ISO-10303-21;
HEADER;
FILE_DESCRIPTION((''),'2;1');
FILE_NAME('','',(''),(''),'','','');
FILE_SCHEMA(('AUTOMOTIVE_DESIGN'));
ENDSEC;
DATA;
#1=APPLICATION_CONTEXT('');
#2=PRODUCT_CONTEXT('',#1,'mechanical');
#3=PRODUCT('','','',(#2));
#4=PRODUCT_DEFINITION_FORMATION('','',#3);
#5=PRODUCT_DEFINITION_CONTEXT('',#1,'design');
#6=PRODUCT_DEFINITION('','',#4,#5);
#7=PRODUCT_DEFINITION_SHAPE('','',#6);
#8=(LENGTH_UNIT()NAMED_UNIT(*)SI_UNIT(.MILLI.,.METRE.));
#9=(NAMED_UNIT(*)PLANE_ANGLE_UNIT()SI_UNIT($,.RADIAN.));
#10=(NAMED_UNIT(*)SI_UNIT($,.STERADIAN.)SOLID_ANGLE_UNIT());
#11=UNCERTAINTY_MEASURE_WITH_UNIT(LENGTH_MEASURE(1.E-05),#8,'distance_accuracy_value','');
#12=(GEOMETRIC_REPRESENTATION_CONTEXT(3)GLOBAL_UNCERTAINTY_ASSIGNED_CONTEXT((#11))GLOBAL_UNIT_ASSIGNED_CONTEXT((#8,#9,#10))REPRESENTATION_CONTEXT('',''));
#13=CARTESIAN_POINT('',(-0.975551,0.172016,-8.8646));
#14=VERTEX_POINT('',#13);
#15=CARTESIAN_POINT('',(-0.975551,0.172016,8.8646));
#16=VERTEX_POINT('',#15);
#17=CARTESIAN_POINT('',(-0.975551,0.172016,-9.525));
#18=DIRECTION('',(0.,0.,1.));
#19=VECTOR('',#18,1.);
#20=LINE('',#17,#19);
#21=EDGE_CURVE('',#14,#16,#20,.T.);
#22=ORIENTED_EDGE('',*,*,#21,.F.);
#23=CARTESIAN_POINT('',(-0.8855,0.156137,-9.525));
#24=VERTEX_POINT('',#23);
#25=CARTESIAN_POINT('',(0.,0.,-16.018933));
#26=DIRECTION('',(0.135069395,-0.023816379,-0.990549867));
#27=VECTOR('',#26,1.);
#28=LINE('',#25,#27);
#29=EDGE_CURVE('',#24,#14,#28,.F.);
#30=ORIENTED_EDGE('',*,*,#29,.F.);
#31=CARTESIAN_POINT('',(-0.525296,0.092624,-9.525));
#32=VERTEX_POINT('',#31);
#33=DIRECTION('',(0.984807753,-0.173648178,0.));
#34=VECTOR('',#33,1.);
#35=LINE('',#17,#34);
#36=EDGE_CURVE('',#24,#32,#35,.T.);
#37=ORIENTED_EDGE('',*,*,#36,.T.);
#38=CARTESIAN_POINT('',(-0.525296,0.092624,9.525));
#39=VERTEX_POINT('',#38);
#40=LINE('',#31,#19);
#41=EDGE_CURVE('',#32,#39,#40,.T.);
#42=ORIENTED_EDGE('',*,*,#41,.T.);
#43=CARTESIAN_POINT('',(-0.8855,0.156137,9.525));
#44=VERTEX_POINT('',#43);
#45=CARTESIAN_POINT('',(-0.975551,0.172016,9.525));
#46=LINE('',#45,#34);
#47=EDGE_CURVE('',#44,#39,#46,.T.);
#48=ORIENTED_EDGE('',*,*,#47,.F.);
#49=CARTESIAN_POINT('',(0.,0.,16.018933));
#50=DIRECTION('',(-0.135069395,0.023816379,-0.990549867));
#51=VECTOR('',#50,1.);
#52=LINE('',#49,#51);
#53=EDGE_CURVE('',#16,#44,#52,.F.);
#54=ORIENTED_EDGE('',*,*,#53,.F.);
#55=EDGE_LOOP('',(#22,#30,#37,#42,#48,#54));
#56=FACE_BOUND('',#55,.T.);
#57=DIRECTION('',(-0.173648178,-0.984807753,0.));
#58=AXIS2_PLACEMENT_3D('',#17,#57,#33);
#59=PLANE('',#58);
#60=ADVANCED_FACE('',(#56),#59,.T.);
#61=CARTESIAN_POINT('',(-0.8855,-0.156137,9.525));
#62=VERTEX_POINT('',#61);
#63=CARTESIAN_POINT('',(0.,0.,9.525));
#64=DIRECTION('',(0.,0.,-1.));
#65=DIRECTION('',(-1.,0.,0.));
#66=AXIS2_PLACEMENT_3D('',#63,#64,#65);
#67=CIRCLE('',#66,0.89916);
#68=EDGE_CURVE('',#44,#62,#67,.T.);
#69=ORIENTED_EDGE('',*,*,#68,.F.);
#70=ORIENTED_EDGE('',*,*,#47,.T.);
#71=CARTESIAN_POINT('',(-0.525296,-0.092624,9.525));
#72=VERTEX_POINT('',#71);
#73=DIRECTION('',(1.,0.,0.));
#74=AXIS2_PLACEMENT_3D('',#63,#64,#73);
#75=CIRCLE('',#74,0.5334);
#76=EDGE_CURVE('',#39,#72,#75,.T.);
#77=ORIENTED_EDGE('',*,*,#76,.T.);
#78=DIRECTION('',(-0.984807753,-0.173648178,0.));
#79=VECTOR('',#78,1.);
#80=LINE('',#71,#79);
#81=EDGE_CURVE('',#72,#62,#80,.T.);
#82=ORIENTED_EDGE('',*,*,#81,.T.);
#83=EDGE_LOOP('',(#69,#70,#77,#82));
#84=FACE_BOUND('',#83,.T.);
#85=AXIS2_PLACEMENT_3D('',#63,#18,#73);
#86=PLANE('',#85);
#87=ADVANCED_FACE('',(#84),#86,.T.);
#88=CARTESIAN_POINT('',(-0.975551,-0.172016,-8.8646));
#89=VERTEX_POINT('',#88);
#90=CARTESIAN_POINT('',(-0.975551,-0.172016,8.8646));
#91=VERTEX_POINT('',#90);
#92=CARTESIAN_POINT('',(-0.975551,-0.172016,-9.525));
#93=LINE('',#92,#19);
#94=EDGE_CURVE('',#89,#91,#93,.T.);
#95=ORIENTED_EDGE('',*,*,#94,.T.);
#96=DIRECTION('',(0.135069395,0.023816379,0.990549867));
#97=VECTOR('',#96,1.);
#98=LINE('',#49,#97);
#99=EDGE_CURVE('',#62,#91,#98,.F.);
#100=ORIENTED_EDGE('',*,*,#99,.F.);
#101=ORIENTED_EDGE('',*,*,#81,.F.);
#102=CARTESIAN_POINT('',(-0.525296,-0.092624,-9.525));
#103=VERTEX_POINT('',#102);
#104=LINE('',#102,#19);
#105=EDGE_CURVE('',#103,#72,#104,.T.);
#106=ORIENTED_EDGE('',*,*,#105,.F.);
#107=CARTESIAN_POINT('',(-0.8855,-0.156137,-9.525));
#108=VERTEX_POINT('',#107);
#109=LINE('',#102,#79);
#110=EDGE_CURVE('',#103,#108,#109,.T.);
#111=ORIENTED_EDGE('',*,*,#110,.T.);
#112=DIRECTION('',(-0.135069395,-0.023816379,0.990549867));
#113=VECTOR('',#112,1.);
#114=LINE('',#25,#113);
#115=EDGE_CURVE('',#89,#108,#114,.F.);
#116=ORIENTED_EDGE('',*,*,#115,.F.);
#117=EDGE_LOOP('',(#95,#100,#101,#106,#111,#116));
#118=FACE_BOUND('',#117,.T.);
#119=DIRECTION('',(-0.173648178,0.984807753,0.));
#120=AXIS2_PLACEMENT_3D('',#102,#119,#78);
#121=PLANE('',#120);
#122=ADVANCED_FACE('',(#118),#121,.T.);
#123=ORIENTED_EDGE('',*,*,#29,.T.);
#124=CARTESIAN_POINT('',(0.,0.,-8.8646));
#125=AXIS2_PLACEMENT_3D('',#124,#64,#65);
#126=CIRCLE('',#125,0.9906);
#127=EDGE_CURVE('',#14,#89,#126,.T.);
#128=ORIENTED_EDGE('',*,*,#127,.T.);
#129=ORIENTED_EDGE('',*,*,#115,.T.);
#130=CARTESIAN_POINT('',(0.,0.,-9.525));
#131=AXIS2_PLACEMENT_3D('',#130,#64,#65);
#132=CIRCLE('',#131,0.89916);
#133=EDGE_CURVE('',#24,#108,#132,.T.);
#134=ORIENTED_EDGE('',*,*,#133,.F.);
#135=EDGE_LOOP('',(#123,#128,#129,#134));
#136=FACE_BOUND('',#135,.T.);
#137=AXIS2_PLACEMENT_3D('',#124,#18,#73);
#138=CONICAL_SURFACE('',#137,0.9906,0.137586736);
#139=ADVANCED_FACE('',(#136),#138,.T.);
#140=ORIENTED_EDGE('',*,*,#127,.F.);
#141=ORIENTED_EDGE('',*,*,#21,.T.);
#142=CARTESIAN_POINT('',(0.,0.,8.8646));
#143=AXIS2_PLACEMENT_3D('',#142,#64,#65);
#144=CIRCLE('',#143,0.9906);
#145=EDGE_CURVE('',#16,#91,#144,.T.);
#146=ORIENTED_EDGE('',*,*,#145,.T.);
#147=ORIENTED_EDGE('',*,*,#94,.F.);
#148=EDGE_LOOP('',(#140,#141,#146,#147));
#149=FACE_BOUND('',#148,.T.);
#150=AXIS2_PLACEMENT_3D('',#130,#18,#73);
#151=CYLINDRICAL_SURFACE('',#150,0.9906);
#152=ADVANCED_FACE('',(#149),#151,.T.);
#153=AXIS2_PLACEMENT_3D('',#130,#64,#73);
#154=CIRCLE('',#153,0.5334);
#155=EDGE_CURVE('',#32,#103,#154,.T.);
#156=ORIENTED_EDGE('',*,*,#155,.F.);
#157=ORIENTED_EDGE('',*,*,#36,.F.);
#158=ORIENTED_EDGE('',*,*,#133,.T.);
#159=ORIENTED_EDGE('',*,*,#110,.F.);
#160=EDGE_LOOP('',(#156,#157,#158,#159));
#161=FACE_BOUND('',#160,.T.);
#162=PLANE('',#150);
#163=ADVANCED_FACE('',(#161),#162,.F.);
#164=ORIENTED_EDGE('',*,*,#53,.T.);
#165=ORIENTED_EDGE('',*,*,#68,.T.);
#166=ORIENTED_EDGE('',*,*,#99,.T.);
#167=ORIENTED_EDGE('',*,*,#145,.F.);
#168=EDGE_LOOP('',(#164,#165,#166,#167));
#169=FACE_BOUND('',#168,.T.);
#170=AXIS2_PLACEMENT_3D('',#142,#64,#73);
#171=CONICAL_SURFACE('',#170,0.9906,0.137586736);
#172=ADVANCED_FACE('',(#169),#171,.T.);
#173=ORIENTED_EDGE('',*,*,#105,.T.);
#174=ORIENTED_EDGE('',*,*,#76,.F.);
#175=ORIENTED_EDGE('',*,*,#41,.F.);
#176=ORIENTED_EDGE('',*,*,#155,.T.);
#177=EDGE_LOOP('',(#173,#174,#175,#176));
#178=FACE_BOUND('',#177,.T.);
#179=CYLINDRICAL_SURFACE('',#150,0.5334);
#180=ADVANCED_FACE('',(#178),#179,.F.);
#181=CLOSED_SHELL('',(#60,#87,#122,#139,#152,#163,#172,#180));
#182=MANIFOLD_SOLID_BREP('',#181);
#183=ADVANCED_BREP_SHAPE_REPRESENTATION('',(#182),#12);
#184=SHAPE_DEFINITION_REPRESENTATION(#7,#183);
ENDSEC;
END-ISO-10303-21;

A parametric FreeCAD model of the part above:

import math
import FreeCAD as App
import Part
import Sketcher

V = App.Vector
Q = App.Units.Quantity


def add_polygon(sketch, points):
    """Adds a closed chain of lines whose ends are joined by coincident constraints."""
    first, n = sketch.GeometryCount, len(points)
    for a, b in zip(points, points[1:] + points[:1]):
        sketch.addGeometry(Part.LineSegment(App.Vector(*a, 0), App.Vector(*b, 0)), False)
    for i in range(n):
        sketch.addConstraint(Sketcher.Constraint("Coincident", first + i, 2, first + (i + 1) % n, 1))

doc = App.newDocument("Part")
params = doc.addObject("Spreadsheet::Sheet", "Params")
for row, (alias, value) in enumerate([
    ("sketch1_radius", "0.039 in"),
    ("sketch1_radius2", "0.021 in"),
    ("pad1_length", "0.375 in"),
    ("pad1_length2", "0.375 in"),
    ("sketch2_height", "0.026 in"),
    ("groove_angle", "360 deg"),
], start=1):
    params.set(f"A{row}", alias)
    params.set(f"B{row}", "=" + value)
    params.setAlias(f"B{row}", alias)

body = doc.addObject("PartDesign::Body", "Body")

# Sketch on XY plane
sketch1 = body.newObject("Sketcher::SketchObject", "Sketch")
sketch1.AttachmentSupport = (doc.getObject("XY_Plane"), [""])
sketch1.MapMode = "FlatFace"
sketch1.addGeometry(Part.LineSegment(V(-0.525296, -0.092624, 0), V(-0.975551, -0.172016, 0)), False)
sketch1.addGeometry(Part.ArcOfCircle(Part.Circle(V(0, 0, 0), V(0, 0, 1), 0.9906), math.radians(-170), math.radians(170)), False)
sketch1.addGeometry(Part.LineSegment(V(-0.975551, 0.172016, 0), V(-0.525296, 0.092624, 0)), False)
sketch1.addGeometry(Part.ArcOfCircle(Part.Circle(V(0, 0, 0), V(0, 0, 1), 0.5334), math.radians(-170), math.radians(170)), False)
sketch1.addConstraint(Sketcher.Constraint("Coincident", 0, 2, 1, 1))
sketch1.addConstraint(Sketcher.Constraint("Coincident", 1, 2, 2, 1))
sketch1.addConstraint(Sketcher.Constraint("Coincident", 2, 2, 3, 2))
sketch1.addConstraint(Sketcher.Constraint("Coincident", 3, 1, 0, 1))
sketch1.addConstraint(Sketcher.Constraint("Coincident", 1, 3, -1, 1))
sketch1.addConstraint(Sketcher.Constraint("Coincident", 3, 3, -1, 1))
sketch1.addConstraint(Sketcher.Constraint("Vertical", 0, 2, 1, 2))
sketch1.addConstraint(Sketcher.Constraint("Vertical", 2, 2, 3, 1))
sketch1.addConstraint(Sketcher.Constraint("Angle", 0, Q("-170 deg")))
sketch1.addConstraint(Sketcher.Constraint("Radius", 1, Q("0.039 in")))
sketch1.addConstraint(Sketcher.Constraint("Radius", 3, Q("0.021 in")))
sketch1.addConstraint(Sketcher.Constraint("DistanceX", 0, 2, -1, 1, 0.975551))
sketch1.setExpression("Constraints[9]", "Params.sketch1_radius")
sketch1.setExpression("Constraints[10]", "Params.sketch1_radius2")
pad1 = body.newObject("PartDesign::Pad", "Pad")
pad1.Profile = sketch1
pad1.Type = "TwoLengths"
pad1.setExpression("Length", "Params.pad1_length")
pad1.setExpression("Length2", "Params.pad1_length2")

# Sketch on YZ plane
sketch2 = body.newObject("Sketcher::SketchObject", "Sketch001")
sketch2.AttachmentSupport = (doc.getObject("YZ_Plane"), [""])
sketch2.MapMode = "FlatFace"
add_polygon(sketch2, [(0.9906, -8.8646), (0.89916, -9.525), (0.9906, -9.525)])  # lines 0-2
sketch2.addConstraint(Sketcher.Constraint("Horizontal", 1))
sketch2.addConstraint(Sketcher.Constraint("Vertical", 2))
sketch2.addConstraint(Sketcher.Constraint("DistanceY", 2, 1, 2, 2, Q("0.026 in")))
sketch2.addConstraint(Sketcher.Constraint("DistanceX", 1, 1, 1, 2, Q("0.0036 in")))
sketch2.addConstraint(Sketcher.Constraint("DistanceY", 0, 2, -1, 1, Q("0.375 in")))
sketch2.addConstraint(Sketcher.Constraint("DistanceX", -1, 1, 1, 2, Q("0.039 in")))
sketch2.setExpression("Constraints[5]", "Params.sketch2_height")
groove = body.newObject("PartDesign::Groove", "Groove")
groove.Profile = sketch2
groove.ReferenceAxis = (sketch2, ["V_Axis"])
groove.setExpression("Angle", "Params.groove_angle")
doc.recompute()

mirrored = body.newObject("PartDesign::Mirrored", "Mirrored")
mirrored.Originals = [groove]
mirrored.MirrorPlane = (doc.getObject("XY_Plane"), [""])
body.Tip = mirrored

doc.recompute()
